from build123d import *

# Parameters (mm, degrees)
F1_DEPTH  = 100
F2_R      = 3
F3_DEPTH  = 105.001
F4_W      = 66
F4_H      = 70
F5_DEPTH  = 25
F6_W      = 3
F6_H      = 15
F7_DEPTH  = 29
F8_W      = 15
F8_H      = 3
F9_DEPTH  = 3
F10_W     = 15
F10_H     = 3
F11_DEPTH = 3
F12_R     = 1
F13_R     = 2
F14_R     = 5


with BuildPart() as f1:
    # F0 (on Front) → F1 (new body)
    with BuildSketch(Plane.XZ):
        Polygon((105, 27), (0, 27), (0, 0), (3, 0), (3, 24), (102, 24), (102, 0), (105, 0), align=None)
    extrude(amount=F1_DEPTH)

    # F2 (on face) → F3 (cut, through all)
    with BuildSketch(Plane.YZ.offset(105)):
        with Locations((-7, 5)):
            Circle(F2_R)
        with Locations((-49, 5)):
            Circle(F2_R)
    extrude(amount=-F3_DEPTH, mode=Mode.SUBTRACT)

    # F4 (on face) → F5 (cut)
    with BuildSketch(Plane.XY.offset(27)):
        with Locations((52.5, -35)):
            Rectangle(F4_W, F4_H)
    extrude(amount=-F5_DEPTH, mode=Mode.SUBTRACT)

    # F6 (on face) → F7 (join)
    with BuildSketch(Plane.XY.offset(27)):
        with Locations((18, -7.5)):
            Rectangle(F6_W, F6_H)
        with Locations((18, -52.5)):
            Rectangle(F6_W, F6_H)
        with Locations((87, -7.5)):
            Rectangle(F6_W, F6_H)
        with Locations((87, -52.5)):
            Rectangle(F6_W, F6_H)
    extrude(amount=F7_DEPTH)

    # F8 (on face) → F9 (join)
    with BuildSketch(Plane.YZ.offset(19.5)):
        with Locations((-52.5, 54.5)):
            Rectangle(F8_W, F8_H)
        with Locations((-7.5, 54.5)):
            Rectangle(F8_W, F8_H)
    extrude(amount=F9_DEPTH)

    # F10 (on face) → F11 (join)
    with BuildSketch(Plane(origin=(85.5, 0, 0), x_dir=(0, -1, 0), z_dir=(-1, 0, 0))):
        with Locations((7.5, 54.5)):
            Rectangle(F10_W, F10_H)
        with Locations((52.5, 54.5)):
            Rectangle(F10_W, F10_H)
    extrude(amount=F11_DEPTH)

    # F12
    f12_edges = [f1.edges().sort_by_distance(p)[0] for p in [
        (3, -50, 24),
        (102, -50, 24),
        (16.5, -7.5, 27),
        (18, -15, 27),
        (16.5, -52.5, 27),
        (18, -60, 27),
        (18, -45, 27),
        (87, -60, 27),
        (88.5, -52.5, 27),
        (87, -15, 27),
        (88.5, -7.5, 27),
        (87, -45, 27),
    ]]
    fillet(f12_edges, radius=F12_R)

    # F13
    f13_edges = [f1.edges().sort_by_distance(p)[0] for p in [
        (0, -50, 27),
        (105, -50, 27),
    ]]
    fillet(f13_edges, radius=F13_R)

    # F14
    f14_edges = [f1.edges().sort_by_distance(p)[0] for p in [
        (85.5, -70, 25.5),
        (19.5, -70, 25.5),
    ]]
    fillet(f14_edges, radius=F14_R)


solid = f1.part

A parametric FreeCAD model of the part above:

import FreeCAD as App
import Part
import Sketcher


def edges_at(feature, points):
    """Names of the edges that pass closest to the given points."""
    edges = feature.Shape.Edges
    near = lambda p: min(range(len(edges)), key=lambda i: edges[i].distToShape(Part.Vertex(*p))[0])
    return sorted({f"Edge{near(p) + 1}" for p in points})


def add_polygon(sketch, points):
    """Adds a closed chain of lines whose ends are joined by coincident constraints."""
    first, n = sketch.GeometryCount, len(points)
    for a, b in zip(points, points[1:] + points[:1]):
        sketch.addGeometry(Part.LineSegment(App.Vector(*a, 0), App.Vector(*b, 0)), False)
    for i in range(n):
        sketch.addConstraint(Sketcher.Constraint("Coincident", first + i, 2, first + (i + 1) % n, 1))

doc = App.newDocument("Part")
params = doc.addObject("Spreadsheet::Sheet", "Params")
for row, (alias, value) in enumerate([
    ("sketch1_width", "105 mm"),
    ("sketch1_width2", "3 mm"),
    ("sketch1_height", "27 mm"),
    ("sketch1_height2", "24 mm"),
    ("pad1_length", "100 mm"),
    ("sketch2_diameter", "6 mm"),
    ("sketch3_width", "66 mm"),
    ("sketch3_height", "70 mm"),
    ("pocket2_length", "25 mm"),
    ("sketch4_width", "3 mm"),
    ("sketch4_height", "15 mm"),
    ("pad2_length", "29 mm"),
    ("sketch5_width", "15 mm"),
    ("sketch5_height", "3 mm"),
    ("pad3_length", "3 mm"),
    ("sketch6_width", "15 mm"),
    ("sketch6_height", "3 mm"),
    ("pad4_length", "3 mm"),
    ("fillet_radius", "1 mm"),
    ("fillet2_radius", "2 mm"),
    ("fillet3_radius", "5 mm"),
], start=1):
    params.set(f"A{row}", alias)
    params.set(f"B{row}", "=" + value)
    params.setAlias(f"B{row}", alias)

body = doc.addObject("PartDesign::Body", "Body")

sketch1 = body.newObject("Sketcher::SketchObject", "Sketch")
sketch1.AttachmentSupport = (doc.getObject("XZ_Plane"), [""])
sketch1.MapMode = "FlatFace"
add_polygon(sketch1, [(105, 27), (0, 27), (0, 0), (3, 0), (3, 24), (102, 24), (102, 0), (105, 0)])
sketch1.addConstraint([
    Sketcher.Constraint("Horizontal", 0),
    Sketcher.Constraint("Vertical", 1),
    Sketcher.Constraint("Horizontal", 2),
    Sketcher.Constraint("Vertical", 3),
    Sketcher.Constraint("Horizontal", 4),
    Sketcher.Constraint("Vertical", 5),
    Sketcher.Constraint("Horizontal", 6),
    Sketcher.Constraint("Vertical", 7),
    Sketcher.Constraint("Coincident", 1, 2, -1, 1),
    Sketcher.Constraint("PointOnObject", 5, 2, -1),
    Sketcher.Constraint("Equal", 2, 6),
    Sketcher.Constraint("DistanceX", 0, 2, 0, 1, 105.0),
    Sketcher.Constraint("DistanceX", 2, 1, 2, 2, 3.0),
    Sketcher.Constraint("DistanceY", 1, 2, 1, 1, 27.0),
    Sketcher.Constraint("DistanceY", 3, 1, 3, 2, 24.0),
])
sketch1.setExpression("Constraints[19]", "Params.sketch1_width")
sketch1.setExpression("Constraints[20]", "Params.sketch1_width2")
sketch1.setExpression("Constraints[21]", "Params.sketch1_height")
sketch1.setExpression("Constraints[22]", "Params.sketch1_height2")
pad1 = body.newObject("PartDesign::Pad", "Pad")
pad1.Profile = sketch1
pad1.setExpression("Length", "Params.pad1_length")

sketch2 = body.newObject("Sketcher::SketchObject", "Sketch001")
sketch2.AttachmentSupport = (doc.getObject("YZ_Plane"), [""])
sketch2.MapMode = "FlatFace"
sketch2.AttachmentOffset = App.Placement(App.Vector(0, 0, 105), App.Rotation())
sketch2.addGeometry([
    Part.Circle(App.Vector(-7, 5, 0), App.Vector(0, 0, 1), 3),
    Part.Circle(App.Vector(-49, 5, 0), App.Vector(0, 0, 1), 3),
], False)
sketch2.addConstraint([
    Sketcher.Constraint("Equal", 0, 1),
    Sketcher.Constraint("Horizontal", 0, 3, 1, 3),
    Sketcher.Constraint("Diameter", 0, 6.0),
    Sketcher.Constraint("DistanceX", 0, 3, -1, 1, 7.0),
    Sketcher.Constraint("DistanceY", -1, 1, 0, 3, 5.0),
    Sketcher.Constraint("DistanceX", 1, 3, -1, 1, 49.0),
])
sketch2.setExpression("Constraints[2]", "Params.sketch2_diameter")
pocket1 = body.newObject("PartDesign::Pocket", "Pocket")
pocket1.Profile = sketch2
pocket1.Type = "ThroughAll"

sketch3 = body.newObject("Sketcher::SketchObject", "Sketch002")
sketch3.AttachmentSupport = (doc.getObject("XY_Plane"), [""])
sketch3.MapMode = "FlatFace"
sketch3.AttachmentOffset = App.Placement(App.Vector(0, 0, 27), App.Rotation())
add_polygon(sketch3, [(20, 0), (20, -70), (86, -70), (86, 0)])
sketch3.addConstraint([
    Sketcher.Constraint("Vertical", 0),
    Sketcher.Constraint("Horizontal", 1),
    Sketcher.Constraint("Vertical", 2),
    Sketcher.Constraint("Horizontal", 3),
    Sketcher.Constraint("PointOnObject", 2, 2, -1),
    Sketcher.Constraint("DistanceX", 1, 1, 1, 2, 66.0),
    Sketcher.Constraint("DistanceY", 0, 2, 0, 1, 70.0),
    Sketcher.Constraint("DistanceX", -1, 1, 0, 2, 19.5),
])
sketch3.setExpression("Constraints[9]", "Params.sketch3_width")
sketch3.setExpression("Constraints[10]", "Params.sketch3_height")
pocket2 = body.newObject("PartDesign::Pocket", "Pocket001")
pocket2.Profile = sketch3
pocket2.setExpression("Length", "Params.pocket2_length")

sketch4 = body.newObject("Sketcher::SketchObject", "Sketch003")
sketch4.AttachmentSupport = (doc.getObject("XY_Plane"), [""])
sketch4.MapMode = "FlatFace"
sketch4.AttachmentOffset = App.Placement(App.Vector(0, 0, 27), App.Rotation())
add_polygon(sketch4, [(16.5, 0), (16.5, -15), (19.5, -15), (19.5, 0)])
add_polygon(sketch4, [(16.5, -45), (16.5, -60), (19.5, -60), (19.5, -45)])
add_polygon(sketch4, [(85.5, 0), (85.5, -15), (88.5, -15), (88.5, 0)])
add_polygon(sketch4, [(85.5, -45), (85.5, -60), (88.5, -60), (88.5, -45)])
sketch4.addConstraint([
    Sketcher.Constraint("Vertical", 0),
    Sketcher.Constraint("Horizontal", 1),
    Sketcher.Constraint("Vertical", 2),
    Sketcher.Constraint("Horizontal", 3),
    Sketcher.Constraint("Vertical", 4),
    Sketcher.Constraint("Horizontal", 5),
    Sketcher.Constraint("Vertical", 6),
    Sketcher.Constraint("Horizontal", 7),
    Sketcher.Constraint("Vertical", 8),
    Sketcher.Constraint("Horizontal", 9),
    Sketcher.Constraint("Vertical", 10),
    Sketcher.Constraint("Horizontal", 11),
    Sketcher.Constraint("Vertical", 12),
    Sketcher.Constraint("Horizontal", 13),
    Sketcher.Constraint("Vertical", 14),
    Sketcher.Constraint("Horizontal", 15),
    Sketcher.Constraint("PointOnObject", 2, 2, -1),
    Sketcher.Constraint("PointOnObject", 10, 2, -1),
    Sketcher.Constraint("Horizontal", 1, 2, 8, 2),
    Sketcher.Constraint("Horizontal", 5, 2, 12, 2),
    Sketcher.Constraint("Horizontal", 7, 2, 14, 2),
    Sketcher.Constraint("Vertical", 3, 2, 4, 2),
    Sketcher.Constraint("Vertical", 2, 2, 5, 2),
    Sketcher.Constraint("Vertical", 11, 2, 12, 2),
    Sketcher.Constraint("Vertical", 10, 2, 13, 2),
    Sketcher.Constraint("Equal", 7, 9),
    Sketcher.Constraint("Equal", 2, 4),
    Sketcher.Constraint("DistanceX", 1, 1, 1, 2, 3.0),
    Sketcher.Constraint("DistanceY", 0, 2, 0, 1, 15.0),
    Sketcher.Constraint("DistanceY", 4, 2, -1, 1, 60.0),
    Sketcher.Constraint("DistanceX", 1, 2, 8, 2, 66.0),
    Sketcher.Constraint("DistanceX", -1, 1, 0, 2, 16.5),
])
sketch4.setExpression("Constraints[43]", "Params.sketch4_width")
sketch4.setExpression("Constraints[44]", "Params.sketch4_height")
pad2 = body.newObject("PartDesign::Pad", "Pad001")
pad2.Profile = sketch4
pad2.setExpression("Length", "Params.pad2_length")

sketch5 = body.newObject("Sketcher::SketchObject", "Sketch004")
sketch5.AttachmentSupport = (doc.getObject("YZ_Plane"), [""])
sketch5.MapMode = "FlatFace"
sketch5.AttachmentOffset = App.Placement(App.Vector(0, 0, 19.5), App.Rotation())
add_polygon(sketch5, [(-60, 56), (-60, 53), (-45, 53), (-45, 56)])
add_polygon(sketch5, [(-15, 56), (-15, 53), (0, 53), (0, 56)])
sketch5.addConstraint([
    Sketcher.Constraint("Vertical", 0),
    Sketcher.Constraint("Horizontal", 1),
    Sketcher.Constraint("Vertical", 2),
    Sketcher.Constraint("Horizontal", 3),
    Sketcher.Constraint("Vertical", 4),
    Sketcher.Constraint("Horizontal", 5),
    Sketcher.Constraint("Vertical", 6),
    Sketcher.Constraint("Horizontal", 7),
    Sketcher.Constraint("PointOnObject", 5, 2, -2),
    Sketcher.Constraint("Horizontal", 1, 2, 4, 2),
    Sketcher.Constraint("Horizontal", 3, 2, 6, 2),
    Sketcher.Constraint("Equal", 3, 5),
    Sketcher.Constraint("DistanceX", 1, 1, 1, 2, 15.0),
    Sketcher.Constraint("DistanceY", 0, 2, 0, 1, 3.0),
    Sketcher.Constraint("DistanceX", 0, 2, -1, 1, 60.0),
    Sketcher.Constraint("DistanceY", -1, 1, 0, 2, 53.0),
])
sketch5.setExpression("Constraints[20]", "Params.sketch5_width")
sketch5.setExpression("Constraints[21]", "Params.sketch5_height")
pad3 = body.newObject("PartDesign::Pad", "Pad002")
pad3.Profile = sketch5
pad3.setExpression("Length", "Params.pad3_length")

sketch6 = body.newObject("Sketcher::SketchObject", "Sketch005")
sketch6.AttachmentSupport = (doc.getObject("YZ_Plane"), [""])
sketch6.MapMode = "FlatFace"
sketch6.AttachmentOffset = App.Placement(App.Vector(0, 0, 85.5), App.Rotation())
add_polygon(sketch6, [(0, 56), (0, 53), (-15, 53), (-15, 56)])
add_polygon(sketch6, [(-45, 56), (-45, 53), (-60, 53), (-60, 56)])
sketch6.addConstraint([
    Sketcher.Constraint("Vertical", 0),
    Sketcher.Constraint("Horizontal", 1),
    Sketcher.Constraint("Vertical", 2),
    Sketcher.Constraint("Horizontal", 3),
    Sketcher.Constraint("Vertical", 4),
    Sketcher.Constraint("Horizontal", 5),
    Sketcher.Constraint("Vertical", 6),
    Sketcher.Constraint("Horizontal", 7),
    Sketcher.Constraint("PointOnObject", 0, 2, -2),
    Sketcher.Constraint("Horizontal", 1, 2, 4, 2),
    Sketcher.Constraint("Horizontal", 3, 2, 6, 2),
    Sketcher.Constraint("Equal", 3, 5),
    Sketcher.Constraint("DistanceX", 1, 2, 1, 1, 15.0),
    Sketcher.Constraint("DistanceY", 0, 2, 0, 1, 3.0),
    Sketcher.Constraint("DistanceY", -1, 1, 0, 2, 53.0),
    Sketcher.Constraint("DistanceX", 4, 2, -1, 1, 45.0),
])
sketch6.setExpression("Constraints[20]", "Params.sketch6_width")
sketch6.setExpression("Constraints[21]", "Params.sketch6_height")
pad4 = body.newObject("PartDesign::Pad", "Pad003")
pad4.Profile = sketch6
pad4.setExpression("Length", "Params.pad4_length")
pad4.Reversed = True
doc.recompute()

fillet = body.newObject("PartDesign::Fillet", "Fillet")
fillet.Base = (pad4, edges_at(pad4, [
    (3, -50, 24),
    (102, -50, 24),
    (16.5, -7.5, 27),
    (18, -15, 27),
    (16.5, -52.5, 27),
    (18, -60, 27),
    (18, -45, 27),
    (87, -60, 27),
    (88.5, -52.5, 27),
    (87, -15, 27),
    (88.5, -7.5, 27),
    (87, -45, 27),
]))
fillet.setExpression("Radius", "Params.fillet_radius")
doc.recompute()

fillet2 = body.newObject("PartDesign::Fillet", "Fillet001")
fillet2.Base = (fillet, edges_at(fillet, [(0, -50, 27), (105, -50, 27)]))
fillet2.setExpression("Radius", "Params.fillet2_radius")
doc.recompute()

fillet3 = body.newObject("PartDesign::Fillet", "Fillet002")
fillet3.Base = (fillet2, edges_at(fillet2, [(85.5, -70, 25.5), (19.5, -70, 25.5)]))
fillet3.setExpression("Radius", "Params.fillet3_radius")

doc.recompute()
